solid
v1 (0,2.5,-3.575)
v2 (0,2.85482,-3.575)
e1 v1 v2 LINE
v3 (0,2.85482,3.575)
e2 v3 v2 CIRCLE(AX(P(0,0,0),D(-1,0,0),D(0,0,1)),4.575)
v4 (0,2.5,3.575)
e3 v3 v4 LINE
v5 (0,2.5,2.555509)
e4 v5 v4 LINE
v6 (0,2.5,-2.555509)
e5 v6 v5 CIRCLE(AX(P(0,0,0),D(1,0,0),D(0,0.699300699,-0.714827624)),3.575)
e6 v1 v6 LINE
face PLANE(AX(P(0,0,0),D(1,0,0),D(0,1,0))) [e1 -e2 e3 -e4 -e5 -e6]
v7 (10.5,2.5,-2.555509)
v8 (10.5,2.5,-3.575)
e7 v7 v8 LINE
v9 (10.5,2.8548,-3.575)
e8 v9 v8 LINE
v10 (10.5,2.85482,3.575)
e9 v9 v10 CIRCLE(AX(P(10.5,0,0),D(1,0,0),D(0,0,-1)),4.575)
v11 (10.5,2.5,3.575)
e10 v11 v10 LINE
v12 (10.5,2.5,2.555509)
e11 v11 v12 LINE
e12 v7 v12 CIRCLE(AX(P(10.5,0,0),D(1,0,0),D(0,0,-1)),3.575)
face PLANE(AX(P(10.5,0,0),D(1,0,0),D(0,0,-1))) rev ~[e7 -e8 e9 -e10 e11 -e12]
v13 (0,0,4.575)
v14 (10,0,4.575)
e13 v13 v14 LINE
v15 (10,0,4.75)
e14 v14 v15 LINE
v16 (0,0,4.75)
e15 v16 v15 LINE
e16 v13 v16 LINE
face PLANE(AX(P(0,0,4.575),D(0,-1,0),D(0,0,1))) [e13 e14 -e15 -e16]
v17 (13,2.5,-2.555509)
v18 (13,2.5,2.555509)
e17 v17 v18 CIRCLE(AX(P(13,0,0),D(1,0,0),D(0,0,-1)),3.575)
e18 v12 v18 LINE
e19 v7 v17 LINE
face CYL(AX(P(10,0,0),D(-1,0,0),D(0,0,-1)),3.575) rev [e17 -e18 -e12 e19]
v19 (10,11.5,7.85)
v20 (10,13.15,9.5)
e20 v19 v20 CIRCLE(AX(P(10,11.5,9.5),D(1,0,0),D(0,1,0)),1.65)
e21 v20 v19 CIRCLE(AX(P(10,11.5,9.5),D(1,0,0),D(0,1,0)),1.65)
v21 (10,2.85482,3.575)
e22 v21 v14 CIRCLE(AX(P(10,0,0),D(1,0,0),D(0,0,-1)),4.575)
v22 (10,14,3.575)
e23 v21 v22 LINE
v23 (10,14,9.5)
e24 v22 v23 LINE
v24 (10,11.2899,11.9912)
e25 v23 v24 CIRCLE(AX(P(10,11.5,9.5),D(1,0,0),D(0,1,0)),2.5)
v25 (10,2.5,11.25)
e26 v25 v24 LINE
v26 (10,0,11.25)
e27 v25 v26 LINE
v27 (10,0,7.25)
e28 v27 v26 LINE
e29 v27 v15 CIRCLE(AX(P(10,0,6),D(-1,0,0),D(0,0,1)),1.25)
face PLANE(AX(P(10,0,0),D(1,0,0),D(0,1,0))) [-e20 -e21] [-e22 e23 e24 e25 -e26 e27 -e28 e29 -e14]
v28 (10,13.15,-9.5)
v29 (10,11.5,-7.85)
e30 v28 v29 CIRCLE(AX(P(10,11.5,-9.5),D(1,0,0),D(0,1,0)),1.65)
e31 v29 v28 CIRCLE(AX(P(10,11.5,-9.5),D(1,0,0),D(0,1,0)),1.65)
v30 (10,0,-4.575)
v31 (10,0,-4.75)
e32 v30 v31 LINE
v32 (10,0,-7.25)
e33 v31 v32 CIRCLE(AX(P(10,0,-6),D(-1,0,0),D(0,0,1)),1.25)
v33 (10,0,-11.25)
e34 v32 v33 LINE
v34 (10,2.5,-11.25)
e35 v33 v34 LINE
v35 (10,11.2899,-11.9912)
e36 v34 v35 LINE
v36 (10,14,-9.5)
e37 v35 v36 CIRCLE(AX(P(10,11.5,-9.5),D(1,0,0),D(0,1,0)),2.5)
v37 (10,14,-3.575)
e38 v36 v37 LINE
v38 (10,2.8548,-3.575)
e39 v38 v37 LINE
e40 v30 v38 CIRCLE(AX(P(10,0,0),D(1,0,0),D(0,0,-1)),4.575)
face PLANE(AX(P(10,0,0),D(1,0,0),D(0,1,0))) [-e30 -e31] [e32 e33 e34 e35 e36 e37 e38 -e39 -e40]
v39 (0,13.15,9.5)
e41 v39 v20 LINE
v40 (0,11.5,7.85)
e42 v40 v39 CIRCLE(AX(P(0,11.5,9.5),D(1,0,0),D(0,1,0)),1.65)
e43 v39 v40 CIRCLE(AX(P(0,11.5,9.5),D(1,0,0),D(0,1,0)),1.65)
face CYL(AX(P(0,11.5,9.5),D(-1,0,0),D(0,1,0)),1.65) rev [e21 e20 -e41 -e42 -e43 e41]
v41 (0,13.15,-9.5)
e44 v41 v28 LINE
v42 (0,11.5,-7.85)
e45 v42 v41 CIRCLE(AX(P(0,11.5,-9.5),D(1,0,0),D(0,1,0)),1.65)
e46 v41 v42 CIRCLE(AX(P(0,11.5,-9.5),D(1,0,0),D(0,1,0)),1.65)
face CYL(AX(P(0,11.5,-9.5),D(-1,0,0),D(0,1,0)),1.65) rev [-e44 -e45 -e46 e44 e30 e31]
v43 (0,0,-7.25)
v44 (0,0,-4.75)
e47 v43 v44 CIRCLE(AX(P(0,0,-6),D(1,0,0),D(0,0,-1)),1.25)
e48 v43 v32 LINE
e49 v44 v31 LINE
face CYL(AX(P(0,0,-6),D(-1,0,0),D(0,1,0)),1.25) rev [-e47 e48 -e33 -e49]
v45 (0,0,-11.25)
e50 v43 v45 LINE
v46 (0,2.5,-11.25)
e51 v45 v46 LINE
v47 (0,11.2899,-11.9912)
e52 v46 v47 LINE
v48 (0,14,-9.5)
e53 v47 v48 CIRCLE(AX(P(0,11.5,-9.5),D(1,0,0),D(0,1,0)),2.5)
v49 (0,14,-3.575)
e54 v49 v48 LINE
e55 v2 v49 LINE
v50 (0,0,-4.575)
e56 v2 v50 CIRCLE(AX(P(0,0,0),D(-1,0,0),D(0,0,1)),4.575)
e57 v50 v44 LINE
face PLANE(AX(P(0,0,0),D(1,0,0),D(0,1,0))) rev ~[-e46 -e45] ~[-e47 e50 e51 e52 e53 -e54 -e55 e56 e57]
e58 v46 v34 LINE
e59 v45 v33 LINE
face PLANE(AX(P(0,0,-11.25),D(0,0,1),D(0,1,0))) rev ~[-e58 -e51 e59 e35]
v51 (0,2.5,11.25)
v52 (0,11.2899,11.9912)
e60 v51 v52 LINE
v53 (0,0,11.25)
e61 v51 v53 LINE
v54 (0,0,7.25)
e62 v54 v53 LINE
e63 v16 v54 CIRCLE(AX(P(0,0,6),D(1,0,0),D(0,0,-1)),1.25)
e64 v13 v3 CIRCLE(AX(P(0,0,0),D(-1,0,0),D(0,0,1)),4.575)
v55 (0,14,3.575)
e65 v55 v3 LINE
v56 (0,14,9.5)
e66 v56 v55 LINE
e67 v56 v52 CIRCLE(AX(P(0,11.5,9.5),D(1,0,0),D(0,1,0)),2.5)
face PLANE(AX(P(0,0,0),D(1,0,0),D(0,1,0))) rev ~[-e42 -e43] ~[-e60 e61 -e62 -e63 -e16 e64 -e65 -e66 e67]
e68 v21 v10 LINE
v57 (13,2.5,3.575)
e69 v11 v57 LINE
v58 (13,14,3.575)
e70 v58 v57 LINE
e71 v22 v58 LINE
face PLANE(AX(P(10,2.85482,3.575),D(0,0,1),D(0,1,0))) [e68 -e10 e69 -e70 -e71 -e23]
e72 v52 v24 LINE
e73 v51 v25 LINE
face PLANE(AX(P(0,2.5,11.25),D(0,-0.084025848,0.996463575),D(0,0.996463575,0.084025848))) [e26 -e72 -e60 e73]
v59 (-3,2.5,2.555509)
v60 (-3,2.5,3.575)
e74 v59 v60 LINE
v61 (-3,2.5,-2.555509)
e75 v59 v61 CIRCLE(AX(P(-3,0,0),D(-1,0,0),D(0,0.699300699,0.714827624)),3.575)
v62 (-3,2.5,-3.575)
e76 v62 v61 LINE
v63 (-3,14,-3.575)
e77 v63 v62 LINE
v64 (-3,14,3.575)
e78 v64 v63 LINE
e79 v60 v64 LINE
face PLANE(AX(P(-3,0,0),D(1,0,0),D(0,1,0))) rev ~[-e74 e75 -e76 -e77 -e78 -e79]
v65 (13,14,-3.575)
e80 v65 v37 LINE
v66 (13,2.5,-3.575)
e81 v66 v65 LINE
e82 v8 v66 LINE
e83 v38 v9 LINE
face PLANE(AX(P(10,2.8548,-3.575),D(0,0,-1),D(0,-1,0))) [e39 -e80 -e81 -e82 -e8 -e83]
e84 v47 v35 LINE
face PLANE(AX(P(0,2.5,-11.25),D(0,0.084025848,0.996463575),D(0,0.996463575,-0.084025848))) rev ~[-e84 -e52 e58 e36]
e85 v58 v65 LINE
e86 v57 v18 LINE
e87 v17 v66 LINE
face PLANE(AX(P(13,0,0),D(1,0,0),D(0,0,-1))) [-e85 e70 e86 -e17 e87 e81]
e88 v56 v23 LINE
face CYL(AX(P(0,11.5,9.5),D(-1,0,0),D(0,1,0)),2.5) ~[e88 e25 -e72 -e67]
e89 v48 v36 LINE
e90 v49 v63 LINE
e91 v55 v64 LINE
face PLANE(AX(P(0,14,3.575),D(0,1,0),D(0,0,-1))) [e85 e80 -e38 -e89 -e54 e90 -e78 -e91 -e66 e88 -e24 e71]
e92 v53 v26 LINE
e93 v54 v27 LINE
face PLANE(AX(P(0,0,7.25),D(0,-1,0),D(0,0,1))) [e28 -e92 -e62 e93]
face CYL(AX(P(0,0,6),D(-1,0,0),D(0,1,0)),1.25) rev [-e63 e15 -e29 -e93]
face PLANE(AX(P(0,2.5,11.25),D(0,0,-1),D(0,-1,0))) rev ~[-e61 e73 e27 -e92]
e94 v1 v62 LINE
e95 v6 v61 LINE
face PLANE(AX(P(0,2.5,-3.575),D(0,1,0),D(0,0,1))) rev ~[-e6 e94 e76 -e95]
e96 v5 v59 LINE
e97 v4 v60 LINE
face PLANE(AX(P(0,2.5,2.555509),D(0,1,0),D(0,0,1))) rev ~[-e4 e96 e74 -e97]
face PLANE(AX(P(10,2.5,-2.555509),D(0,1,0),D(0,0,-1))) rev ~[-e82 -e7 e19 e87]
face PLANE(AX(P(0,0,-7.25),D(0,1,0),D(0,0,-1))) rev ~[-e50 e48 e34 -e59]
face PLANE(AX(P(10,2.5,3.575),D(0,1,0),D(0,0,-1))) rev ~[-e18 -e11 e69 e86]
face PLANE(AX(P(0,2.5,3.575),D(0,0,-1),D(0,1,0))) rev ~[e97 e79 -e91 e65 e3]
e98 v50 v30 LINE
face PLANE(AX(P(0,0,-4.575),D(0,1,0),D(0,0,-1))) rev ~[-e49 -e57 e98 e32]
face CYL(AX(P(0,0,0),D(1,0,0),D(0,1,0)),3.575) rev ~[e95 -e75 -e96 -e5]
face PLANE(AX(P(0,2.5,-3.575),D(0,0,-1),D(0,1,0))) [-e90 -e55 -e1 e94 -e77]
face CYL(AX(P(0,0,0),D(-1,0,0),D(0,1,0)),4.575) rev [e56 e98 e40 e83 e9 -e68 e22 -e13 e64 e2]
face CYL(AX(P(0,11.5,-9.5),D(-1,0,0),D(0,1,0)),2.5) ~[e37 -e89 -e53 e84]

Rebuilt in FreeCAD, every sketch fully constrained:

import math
import FreeCAD as App
import Part
import Sketcher
Q = App.Units.Quantity

doc = App.newDocument("Part")
body = doc.addObject("PartDesign::Body", "Body")

# Sketch on YZ plane
sketch1 = body.newObject("Sketcher::SketchObject", "Sketch")
sketch1.AttachmentSupport = (doc.getObject("YZ_Plane"), [""])
sketch1.MapMode = "FlatFace"
sketch1.addGeometry(Part.LineSegment(App.Vector(0, -4.58, 0), App.Vector(0, -4.75, 0)), False)
sketch1.addGeometry(Part.ArcOfCircle(Part.Circle(App.Vector(0, -6, 0), App.Vector(0, 0, 1), 1.25), math.radians(-90), math.radians(90)), False)
sketch1.addGeometry(Part.LineSegment(App.Vector(0, -7.25, 0), App.Vector(0, -11.25, 0)), False)
sketch1.addGeometry(Part.LineSegment(App.Vector(0, -11.25, 0), App.Vector(2.5, -11.25, 0)), False)
sketch1.addGeometry(Part.LineSegment(App.Vector(2.5, -11.25, 0), App.Vector(11.29, -11.99, 0)), False)
sketch1.addGeometry(Part.ArcOfCircle(Part.Circle(App.Vector(11.5, -9.5, 0), App.Vector(0, 0, 1), 2.5), math.radians(-95), math.radians(0)), False)
sketch1.addGeometry(Part.LineSegment(App.Vector(14, -9.5, 0), App.Vector(14, 9.5, 0)), False)
sketch1.addGeometry(Part.ArcOfCircle(Part.Circle(App.Vector(11.5, 9.5, 0), App.Vector(0, 0, 1), 2.5), math.radians(0), math.radians(95)), False)
sketch1.addGeometry(Part.LineSegment(App.Vector(11.29, 11.99, 0), App.Vector(2.5, 11.25, 0)), False)
sketch1.addGeometry(Part.LineSegment(App.Vector(2.5, 11.25, 0), App.Vector(0, 11.25, 0)), False)
sketch1.addGeometry(Part.LineSegment(App.Vector(0, 11.25, 0), App.Vector(0, 7.25, 0)), False)
sketch1.addGeometry(Part.ArcOfCircle(Part.Circle(App.Vector(0, 6, 0), App.Vector(0, 0, 1), 1.25), math.radians(-90), math.radians(90)), False)
sketch1.addGeometry(Part.LineSegment(App.Vector(0, 4.75, 0), App.Vector(0, 4.58, 0)), False)
sketch1.addGeometry(Part.ArcOfCircle(Part.Circle(App.Vector(0, 0, 0), App.Vector(0, 0, 1), 4.58), math.radians(-90), math.radians(90)), False)
sketch1.addGeometry(Part.Circle(App.Vector(11.5, -9.5, 0), App.Vector(0, 0, 1), 1.65), False)
sketch1.addGeometry(Part.Circle(App.Vector(11.5, 9.5, 0), App.Vector(0, 0, 1), 1.65), False)
sketch1.addConstraint(Sketcher.Constraint("Coincident", 0, 2, 1, 2))
sketch1.addConstraint(Sketcher.Constraint("Coincident", 1, 1, 2, 1))
sketch1.addConstraint(Sketcher.Constraint("Coincident", 2, 2, 3, 1))
sketch1.addConstraint(Sketcher.Constraint("Coincident", 3, 2, 4, 1))
sketch1.addConstraint(Sketcher.Constraint("Tangent", 4, 2, 5, 1))
sketch1.addConstraint(Sketcher.Constraint("Tangent", 5, 2, 6, 1))
sketch1.addConstraint(Sketcher.Constraint("Tangent", 6, 2, 7, 1))
sketch1.addConstraint(Sketcher.Constraint("Tangent", 7, 2, 8, 1))
sketch1.addConstraint(Sketcher.Constraint("Coincident", 8, 2, 9, 1))
sketch1.addConstraint(Sketcher.Constraint("Coincident", 9, 2, 10, 1))
sketch1.addConstraint(Sketcher.Constraint("Coincident", 10, 2, 11, 2))
sketch1.addConstraint(Sketcher.Constraint("Coincident", 11, 1, 12, 1))
sketch1.addConstraint(Sketcher.Constraint("Coincident", 12, 2, 13, 2))
sketch1.addConstraint(Sketcher.Constraint("Coincident", 13, 1, 0, 1))
sketch1.addConstraint(Sketcher.Constraint("Vertical", 0))
sketch1.addConstraint(Sketcher.Constraint("Vertical", 2))
sketch1.addConstraint(Sketcher.Constraint("Horizontal", 3))
sketch1.addConstraint(Sketcher.Constraint("Vertical", 6))
sketch1.addConstraint(Sketcher.Constraint("Horizontal", 9))
sketch1.addConstraint(Sketcher.Constraint("Vertical", 10))
sketch1.addConstraint(Sketcher.Constraint("Vertical", 12))
sketch1.addConstraint(Sketcher.Constraint("Coincident", 13, 3, -1, 1))
sketch1.addConstraint(Sketcher.Constraint("Coincident", 14, 3, 5, 3))
sketch1.addConstraint(Sketcher.Constraint("Coincident", 15, 3, 7, 3))
sketch1.addConstraint(Sketcher.Constraint("Equal", 5, 7))
sketch1.addConstraint(Sketcher.Constraint("Equal", 1, 11))
sketch1.addConstraint(Sketcher.Constraint("Equal", 14, 15))
sketch1.addConstraint(Sketcher.Constraint("Symmetric", 1, 3, 11, 3, -1, 1))
sketch1.addConstraint(Sketcher.Constraint("Symmetric", 2, 2, 9, 2, -1, 1))
sketch1.addConstraint(Sketcher.Constraint("Symmetric", 4, 2, 7, 2, -1))
sketch1.addConstraint(Sketcher.Constraint("PointOnObject", 1, 3, -2))
sketch1.addConstraint(Sketcher.Constraint("PointOnObject", 0, 2, -2))
sketch1.addConstraint(Sketcher.Constraint("PointOnObject", 1, 1, -2))
sketch1.addConstraint(Sketcher.Constraint("PointOnObject", 11, 1, -2))
sketch1.addConstraint(Sketcher.Constraint("Diameter", 14, Q("3.3 mm")))
sketch1.addConstraint(Sketcher.Constraint("Radius", 5, Q("2.5 mm")))
sketch1.addConstraint(Sketcher.Constraint("DistanceY", 6, 1, 6, 2, Q("19 mm")))
sketch1.addConstraint(Sketcher.Constraint("Radius", 1, Q("1.25 mm")))
sketch1.addConstraint(Sketcher.Constraint("DistanceX", 3, 1, 3, 2, Q("2.5 mm")))
sketch1.addConstraint(Sketcher.Constraint("DistanceY", 1, 3, -1, 1, Q("6 mm")))
sketch1.addConstraint(Sketcher.Constraint("Radius", 13, Q("4.575 mm")))
sketch1.addConstraint(Sketcher.Constraint("DistanceX", -1, 1, 5, 3, Q("11.5 mm")))
sketch1.addConstraint(Sketcher.Constraint("DistanceY", 2, 2, 2, 1, Q("4 mm")))
pad1 = body.newObject("PartDesign::Pad", "Pad")
pad1.Profile = sketch1
pad1.Length = 10

# Sketch on YZ plane
sketch2 = body.newObject("Sketcher::SketchObject", "Sketch001")
sketch2.AttachmentSupport = (doc.getObject("YZ_Plane"), [""])
sketch2.MapMode = "FlatFace"
sketch2.addGeometry(Part.ArcOfCircle(Part.Circle(App.Vector(0, 0, 0), App.Vector(0, 0, 1), 3.6), math.radians(-46), math.radians(46)), False)
sketch2.addGeometry(Part.LineSegment(App.Vector(2.5, -2.6, 0), App.Vector(2.5, -3.6, 0)), False)
sketch2.addGeometry(Part.LineSegment(App.Vector(2.5, -3.6, 0), App.Vector(14, -3.6, 0)), False)
sketch2.addGeometry(Part.LineSegment(App.Vector(14, -3.6, 0), App.Vector(14, 3.6, 0)), False)
sketch2.addGeometry(Part.LineSegment(App.Vector(14, 3.6, 0), App.Vector(2.5, 3.6, 0)), False)
sketch2.addGeometry(Part.LineSegment(App.Vector(2.5, 3.6, 0), App.Vector(2.5, 2.6, 0)), False)
sketch2.addConstraint(Sketcher.Constraint("Coincident", 0, 1, 1, 1))
sketch2.addConstraint(Sketcher.Constraint("Coincident", 1, 2, 2, 1))
sketch2.addConstraint(Sketcher.Constraint("Coincident", 2, 2, 3, 1))
sketch2.addConstraint(Sketcher.Constraint("Coincident", 3, 2, 4, 1))
sketch2.addConstraint(Sketcher.Constraint("Coincident", 4, 2, 5, 1))
sketch2.addConstraint(Sketcher.Constraint("Coincident", 5, 2, 0, 2))
sketch2.addConstraint(Sketcher.Constraint("Vertical", 1))
sketch2.addConstraint(Sketcher.Constraint("Horizontal", 2))
sketch2.addConstraint(Sketcher.Constraint("Vertical", 3))
sketch2.addConstraint(Sketcher.Constraint("Horizontal", 4))
sketch2.addConstraint(Sketcher.Constraint("Vertical", 5))
sketch2.addConstraint(Sketcher.Constraint("Coincident", 0, 3, -1, 1))
sketch2.addConstraint(Sketcher.Constraint("Symmetric", 1, 2, 4, 2, -1))
sketch2.addConstraint(Sketcher.Constraint("DistanceX", 2, 1, 2, 2, Q("11.5 mm")))
sketch2.addConstraint(Sketcher.Constraint("Radius", 0, Q("3.575 mm")))
sketch2.addConstraint(Sketcher.Constraint("DistanceY", 3, 1, 3, 2, Q("7.15 mm")))
sketch2.addConstraint(Sketcher.Constraint("DistanceX", -1, 1, 0, 1, Q("2.5 mm")))
pad2 = body.newObject("PartDesign::Pad", "Pad001")
pad2.Profile = sketch2
pad2.Length = 3
pad2.Reversed = True

# Sketch on YZ plane
sketch3 = body.newObject("Sketcher::SketchObject", "Sketch002")
sketch3.AttachmentSupport = (doc.getObject("YZ_Plane"), [""])
sketch3.MapMode = "FlatFace"
sketch3.AttachmentOffset = App.Placement(App.Vector(0, 0, 10), App.Rotation())
sketch3.addGeometry(Part.ArcOfCircle(Part.Circle(App.Vector(0, 0, 0), App.Vector(0, 0, 1), 4.6), math.radians(-51), math.radians(51)), False)
sketch3.addGeometry(Part.LineSegment(App.Vector(2.9, -3.6, 0), App.Vector(14, -3.6, 0)), False)
sketch3.addGeometry(Part.LineSegment(App.Vector(14, -3.6, 0), App.Vector(14, 3.6, 0)), False)
sketch3.addGeometry(Part.LineSegment(App.Vector(14, 3.6, 0), App.Vector(2.9, 3.6, 0)), False)
sketch3.addConstraint(Sketcher.Constraint("Coincident", 0, 1, 1, 1))
sketch3.addConstraint(Sketcher.Constraint("Coincident", 1, 2, 2, 1))
sketch3.addConstraint(Sketcher.Constraint("Coincident", 2, 2, 3, 1))
sketch3.addConstraint(Sketcher.Constraint("Coincident", 3, 2, 0, 2))
sketch3.addConstraint(Sketcher.Constraint("Horizontal", 1))
sketch3.addConstraint(Sketcher.Constraint("Vertical", 2))
sketch3.addConstraint(Sketcher.Constraint("Horizontal", 3))
sketch3.addConstraint(Sketcher.Constraint("Coincident", 0, 3, -1, 1))
sketch3.addConstraint(Sketcher.Constraint("Vertical", 0, 1, 3, 2))
sketch3.addConstraint(Sketcher.Constraint("DistanceX", -1, 1, 1, 2, Q("14 mm")))
sketch3.addConstraint(Sketcher.Constraint("Radius", 0, Q("4.575 mm")))
sketch3.addConstraint(Sketcher.Constraint("DistanceY", 2, 1, 2, 2, Q("7.15 mm")))
pad3 = body.newObject("PartDesign::Pad", "Pad002")
pad3.Profile = sketch3
pad3.Length = 0.5

# Sketch on YZ plane
sketch4 = body.newObject("Sketcher::SketchObject", "Sketch003")
sketch4.AttachmentSupport = (doc.getObject("YZ_Plane"), [""])
sketch4.MapMode = "FlatFace"
sketch4.AttachmentOffset = App.Placement(App.Vector(0, 0, 10), App.Rotation())
sketch4.addGeometry(Part.ArcOfCircle(Part.Circle(App.Vector(0, 0, 0), App.Vector(0, 0, 1), 3.6), math.radians(-46), math.radians(46)), False)
sketch4.addGeometry(Part.LineSegment(App.Vector(2.5, -2.6, 0), App.Vector(2.5, -3.6, 0)), False)
sketch4.addGeometry(Part.LineSegment(App.Vector(2.5, -3.6, 0), App.Vector(14, -3.6, 0)), False)
sketch4.addGeometry(Part.LineSegment(App.Vector(14, -3.6, 0), App.Vector(14, 3.6, 0)), False)
sketch4.addGeometry(Part.LineSegment(App.Vector(14, 3.6, 0), App.Vector(2.5, 3.6, 0)), False)
sketch4.addGeometry(Part.LineSegment(App.Vector(2.5, 3.6, 0), App.Vector(2.5, 2.6, 0)), False)
sketch4.addConstraint(Sketcher.Constraint("Coincident", 0, 1, 1, 1))
sketch4.addConstraint(Sketcher.Constraint("Coincident", 1, 2, 2, 1))
sketch4.addConstraint(Sketcher.Constraint("Coincident", 2, 2, 3, 1))
sketch4.addConstraint(Sketcher.Constraint("Coincident", 3, 2, 4, 1))
sketch4.addConstraint(Sketcher.Constraint("Coincident", 4, 2, 5, 1))
sketch4.addConstraint(Sketcher.Constraint("Coincident", 5, 2, 0, 2))
sketch4.addConstraint(Sketcher.Constraint("Vertical", 1))
sketch4.addConstraint(Sketcher.Constraint("Horizontal", 2))
sketch4.addConstraint(Sketcher.Constraint("Vertical", 3))
sketch4.addConstraint(Sketcher.Constraint("Horizontal", 4))
sketch4.addConstraint(Sketcher.Constraint("Vertical", 5))
sketch4.addConstraint(Sketcher.Constraint("Coincident", 0, 3, -1, 1))
sketch4.addConstraint(Sketcher.Constraint("Symmetric", 1, 2, 4, 2, -1))
sketch4.addConstraint(Sketcher.Constraint("DistanceX", 2, 1, 2, 2, Q("11.5 mm")))
sketch4.addConstraint(Sketcher.Constraint("DistanceX", -1, 1, 2, 2, Q("14 mm")))
sketch4.addConstraint(Sketcher.Constraint("Radius", 0, Q("3.575 mm")))
sketch4.addConstraint(Sketcher.Constraint("DistanceY", 3, 1, 3, 2, Q("7.15 mm")))
pad4 = body.newObject("PartDesign::Pad", "Pad003")
pad4.Profile = sketch4
pad4.Length = 3

# Sketch on YZ plane
sketch5 = body.newObject("Sketcher::SketchObject", "Sketch004")
sketch5.AttachmentSupport = (doc.getObject("YZ_Plane"), [""])
sketch5.MapMode = "FlatFace"
sketch5.AttachmentOffset = App.Placement(App.Vector(0, 0, 10), App.Rotation())
sketch5.addGeometry(Part.ArcOfCircle(Part.Circle(App.Vector(0, 0, 0), App.Vector(0, 0, 1), 3.58), math.radians(-46), math.radians(46)), False)
sketch5.addGeometry(Part.LineSegment(App.Vector(2.5, -2.56, 0), App.Vector(2.5, -3.58, 0)), False)
sketch5.addGeometry(Part.LineSegment(App.Vector(2.5, -3.58, 0), App.Vector(2.85, -3.58, 0)), False)
sketch5.addGeometry(Part.ArcOfCircle(Part.Circle(App.Vector(0, 0, 0), App.Vector(0, 0, 1), 4.58), math.radians(-51), math.radians(51)), False)
sketch5.addGeometry(Part.LineSegment(App.Vector(2.85, 3.58, 0), App.Vector(2.5, 3.58, 0)), False)
sketch5.addGeometry(Part.LineSegment(App.Vector(2.5, 3.58, 0), App.Vector(2.5, 2.56, 0)), False)
sketch5.addConstraint(Sketcher.Constraint("Coincident", 0, 1, 1, 1))
sketch5.addConstraint(Sketcher.Constraint("Coincident", 1, 2, 2, 1))
sketch5.addConstraint(Sketcher.Constraint("Coincident", 2, 2, 3, 1))
sketch5.addConstraint(Sketcher.Constraint("Coincident", 3, 2, 4, 1))
sketch5.addConstraint(Sketcher.Constraint("Coincident", 4, 2, 5, 1))
sketch5.addConstraint(Sketcher.Constraint("Coincident", 5, 2, 0, 2))
sketch5.addConstraint(Sketcher.Constraint("Vertical", 1))
sketch5.addConstraint(Sketcher.Constraint("Horizontal", 2))
sketch5.addConstraint(Sketcher.Constraint("Horizontal", 4))
sketch5.addConstraint(Sketcher.Constraint("Vertical", 5))
sketch5.addConstraint(Sketcher.Constraint("Coincident", 0, 3, -1, 1))
sketch5.addConstraint(Sketcher.Constraint("Coincident", 3, 3, -1, 1))
sketch5.addConstraint(Sketcher.Constraint("Symmetric", 1, 2, 4, 2, -1))
sketch5.addConstraint(Sketcher.Constraint("Radius", 0, Q("3.575 mm")))
sketch5.addConstraint(Sketcher.Constraint("Radius", 3, Q("4.575 mm")))
sketch5.addConstraint(Sketcher.Constraint("DistanceX", -1, 1, 0, 1, Q("2.5 mm")))
sketch5.addConstraint(Sketcher.Constraint("DistanceY", 2, 2, 3, 2, Q("7.15 mm")))
pocket1 = body.newObject("PartDesign::Pocket", "Pocket")
pocket1.Profile = sketch5
pocket1.Length = 0.5
pocket1.Reversed = True

doc.recompute()
